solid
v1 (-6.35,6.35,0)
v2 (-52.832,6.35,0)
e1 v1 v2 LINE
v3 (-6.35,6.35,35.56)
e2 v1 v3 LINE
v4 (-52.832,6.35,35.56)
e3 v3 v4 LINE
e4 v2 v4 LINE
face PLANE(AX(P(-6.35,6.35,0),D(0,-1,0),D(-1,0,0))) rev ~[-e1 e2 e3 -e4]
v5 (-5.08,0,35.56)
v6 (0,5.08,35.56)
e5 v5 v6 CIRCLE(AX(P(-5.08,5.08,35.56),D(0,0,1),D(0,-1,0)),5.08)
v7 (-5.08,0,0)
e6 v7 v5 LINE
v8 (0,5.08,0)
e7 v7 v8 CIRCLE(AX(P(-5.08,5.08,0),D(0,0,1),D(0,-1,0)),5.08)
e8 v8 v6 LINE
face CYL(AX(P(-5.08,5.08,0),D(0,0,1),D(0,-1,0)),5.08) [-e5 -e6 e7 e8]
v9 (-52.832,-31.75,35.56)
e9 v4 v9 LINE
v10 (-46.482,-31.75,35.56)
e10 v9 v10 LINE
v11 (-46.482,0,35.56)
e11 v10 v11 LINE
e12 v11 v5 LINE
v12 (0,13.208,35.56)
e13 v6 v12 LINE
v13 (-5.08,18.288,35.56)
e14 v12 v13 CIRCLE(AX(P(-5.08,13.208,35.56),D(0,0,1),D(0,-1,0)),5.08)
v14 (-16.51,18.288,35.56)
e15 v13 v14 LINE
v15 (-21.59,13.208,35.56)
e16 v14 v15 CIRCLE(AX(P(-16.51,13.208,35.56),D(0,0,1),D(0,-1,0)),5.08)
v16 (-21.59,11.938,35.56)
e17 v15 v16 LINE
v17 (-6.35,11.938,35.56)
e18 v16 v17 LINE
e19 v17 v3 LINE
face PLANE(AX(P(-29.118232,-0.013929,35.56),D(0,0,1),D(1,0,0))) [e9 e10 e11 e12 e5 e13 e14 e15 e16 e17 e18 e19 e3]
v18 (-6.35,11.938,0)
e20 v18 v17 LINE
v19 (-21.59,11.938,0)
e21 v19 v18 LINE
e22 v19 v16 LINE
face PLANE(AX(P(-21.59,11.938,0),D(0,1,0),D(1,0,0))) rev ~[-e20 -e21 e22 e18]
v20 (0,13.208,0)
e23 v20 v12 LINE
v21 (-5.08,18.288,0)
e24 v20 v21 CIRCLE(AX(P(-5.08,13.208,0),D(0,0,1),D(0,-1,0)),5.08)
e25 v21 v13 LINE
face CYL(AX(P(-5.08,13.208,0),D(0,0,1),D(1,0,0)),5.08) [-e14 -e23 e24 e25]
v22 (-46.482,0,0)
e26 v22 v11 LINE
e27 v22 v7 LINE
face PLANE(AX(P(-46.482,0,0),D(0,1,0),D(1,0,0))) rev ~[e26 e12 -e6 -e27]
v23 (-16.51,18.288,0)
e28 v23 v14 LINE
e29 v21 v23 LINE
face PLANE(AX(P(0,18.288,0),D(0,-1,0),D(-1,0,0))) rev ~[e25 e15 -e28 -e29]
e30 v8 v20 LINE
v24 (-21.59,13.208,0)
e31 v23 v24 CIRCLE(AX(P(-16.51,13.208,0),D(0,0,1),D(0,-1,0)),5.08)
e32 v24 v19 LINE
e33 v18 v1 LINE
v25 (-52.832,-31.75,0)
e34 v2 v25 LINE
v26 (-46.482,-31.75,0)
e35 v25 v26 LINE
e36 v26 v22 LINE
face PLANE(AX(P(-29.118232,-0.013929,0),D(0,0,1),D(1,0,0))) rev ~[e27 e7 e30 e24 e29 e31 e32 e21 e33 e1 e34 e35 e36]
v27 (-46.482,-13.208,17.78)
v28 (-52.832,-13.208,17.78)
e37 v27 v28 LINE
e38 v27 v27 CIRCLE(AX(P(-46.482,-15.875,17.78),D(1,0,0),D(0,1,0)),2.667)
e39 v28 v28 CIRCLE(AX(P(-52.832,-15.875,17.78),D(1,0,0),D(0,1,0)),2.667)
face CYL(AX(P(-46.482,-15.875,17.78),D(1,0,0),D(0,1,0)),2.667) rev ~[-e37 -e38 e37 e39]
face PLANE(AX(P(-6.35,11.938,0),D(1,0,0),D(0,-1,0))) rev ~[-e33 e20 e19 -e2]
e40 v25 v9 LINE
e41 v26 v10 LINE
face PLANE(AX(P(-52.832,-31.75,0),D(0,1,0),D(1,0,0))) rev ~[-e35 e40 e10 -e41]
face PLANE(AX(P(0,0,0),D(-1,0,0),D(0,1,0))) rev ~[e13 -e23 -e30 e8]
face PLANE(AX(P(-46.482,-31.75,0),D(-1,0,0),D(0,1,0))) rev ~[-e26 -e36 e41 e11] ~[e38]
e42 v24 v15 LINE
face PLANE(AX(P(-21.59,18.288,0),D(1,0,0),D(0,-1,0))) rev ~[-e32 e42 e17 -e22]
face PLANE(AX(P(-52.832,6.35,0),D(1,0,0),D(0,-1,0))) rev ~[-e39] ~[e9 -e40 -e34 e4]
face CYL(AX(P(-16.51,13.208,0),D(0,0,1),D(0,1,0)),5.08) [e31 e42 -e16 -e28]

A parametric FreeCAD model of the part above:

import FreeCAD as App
import Part
import Sketcher

V = App.Vector
Q = App.Units.Quantity


def edges_at(feature, points):
    """Names of the edges that pass closest to the given points."""
    edges = feature.Shape.Edges
    near = lambda p: min(range(len(edges)), key=lambda i: edges[i].distToShape(Part.Vertex(*p))[0])
    return sorted({f"Edge{near(p) + 1}" for p in points})


def add_polygon(sketch, points):
    """Adds a closed chain of lines whose ends are joined by coincident constraints."""
    first, n = sketch.GeometryCount, len(points)
    for a, b in zip(points, points[1:] + points[:1]):
        sketch.addGeometry(Part.LineSegment(App.Vector(*a, 0), App.Vector(*b, 0)), False)
    for i in range(n):
        sketch.addConstraint(Sketcher.Constraint("Coincident", first + i, 2, first + (i + 1) % n, 1))

doc = App.newDocument("Part")
body = doc.addObject("PartDesign::Body", "Body")

sketch1 = body.newObject("Sketcher::SketchObject", "Sketch")
sketch1.AttachmentSupport = (doc.getObject("XY_Plane"), [""])
sketch1.MapMode = "FlatFace"
add_polygon(sketch1, [(-46.482, 0), (0, 0), (0, 18.288), (-21.59, 18.288), (-21.59, 11.938), (-6.35, 11.938), (-6.35, 6.35), (-52.832, 6.35), (-52.832, -31.75), (-46.482, -31.75)])
sketch1.addConstraint(Sketcher.Constraint("Horizontal", 0))
sketch1.addConstraint(Sketcher.Constraint("Vertical", 1))
sketch1.addConstraint(Sketcher.Constraint("Horizontal", 2))
sketch1.addConstraint(Sketcher.Constraint("Vertical", 3))
sketch1.addConstraint(Sketcher.Constraint("Horizontal", 4))
sketch1.addConstraint(Sketcher.Constraint("Vertical", 5))
sketch1.addConstraint(Sketcher.Constraint("Horizontal", 6))
sketch1.addConstraint(Sketcher.Constraint("Vertical", 7))
sketch1.addConstraint(Sketcher.Constraint("Horizontal", 8))
sketch1.addConstraint(Sketcher.Constraint("Vertical", 9))
sketch1.addConstraint(Sketcher.Constraint("Coincident", 0, 2, -1, 1))
sketch1.addConstraint(Sketcher.Constraint("Equal", 0, 6))
sketch1.addConstraint(Sketcher.Constraint("Equal", 8, 3))
sketch1.addConstraint(Sketcher.Constraint("DistanceX", 4, 1, 4, 2, Q("0.6 in")))
sketch1.addConstraint(Sketcher.Constraint("DistanceY", 7, 2, 7, 1, Q("1.5 in")))
sketch1.addConstraint(Sketcher.Constraint("DistanceX", 0, 1, 0, 2, Q("1.83 in")))
sketch1.addConstraint(Sketcher.Constraint("DistanceX", 2, 2, 2, 1, Q("0.85 in")))
sketch1.addConstraint(Sketcher.Constraint("DistanceY", 1, 1, 1, 2, Q("0.72 in")))
sketch1.addConstraint(Sketcher.Constraint("DistanceY", 5, 2, 5, 1, Q("0.22 in")))
pad1 = body.newObject("PartDesign::Pad", "Pad")
pad1.Profile = sketch1
pad1.Length = Q("1.4 in")

sketch2 = body.newObject("Sketcher::SketchObject", "Sketch001")
sketch2.AttachmentSupport = (doc.getObject("YZ_Plane"), [""])
sketch2.MapMode = "FlatFace"
sketch2.AttachmentOffset = App.Placement(V(0, 0, -1.83 * 25.4), App.Rotation())
sketch2.addGeometry(Part.Circle(V(-15.875, 17.78, 0), V(0, 0, 1), 2.667), False)
sketch2.addConstraint(Sketcher.Constraint("Diameter", 0, Q("0.21 in")))
sketch2.addConstraint(Sketcher.Constraint("DistanceY", -1, 1, 0, 3, Q("0.7 in")))
sketch2.addConstraint(Sketcher.Constraint("DistanceX", 0, 3, -1, 1, Q("0.625 in")))
pocket1 = body.newObject("PartDesign::Pocket", "Pocket")
pocket1.Profile = sketch2
pocket1.Length = Q("1 in")
doc.recompute()

fillet = body.newObject("PartDesign::Fillet", "Fillet")
fillet.Base = (pocket1, edges_at(pocket1, [(0, 0, 17.78), (0, 18.288, 17.78), (-21.59, 18.288, 17.78)]))
fillet.Radius = Q("0.2 in")

doc.recompute()
